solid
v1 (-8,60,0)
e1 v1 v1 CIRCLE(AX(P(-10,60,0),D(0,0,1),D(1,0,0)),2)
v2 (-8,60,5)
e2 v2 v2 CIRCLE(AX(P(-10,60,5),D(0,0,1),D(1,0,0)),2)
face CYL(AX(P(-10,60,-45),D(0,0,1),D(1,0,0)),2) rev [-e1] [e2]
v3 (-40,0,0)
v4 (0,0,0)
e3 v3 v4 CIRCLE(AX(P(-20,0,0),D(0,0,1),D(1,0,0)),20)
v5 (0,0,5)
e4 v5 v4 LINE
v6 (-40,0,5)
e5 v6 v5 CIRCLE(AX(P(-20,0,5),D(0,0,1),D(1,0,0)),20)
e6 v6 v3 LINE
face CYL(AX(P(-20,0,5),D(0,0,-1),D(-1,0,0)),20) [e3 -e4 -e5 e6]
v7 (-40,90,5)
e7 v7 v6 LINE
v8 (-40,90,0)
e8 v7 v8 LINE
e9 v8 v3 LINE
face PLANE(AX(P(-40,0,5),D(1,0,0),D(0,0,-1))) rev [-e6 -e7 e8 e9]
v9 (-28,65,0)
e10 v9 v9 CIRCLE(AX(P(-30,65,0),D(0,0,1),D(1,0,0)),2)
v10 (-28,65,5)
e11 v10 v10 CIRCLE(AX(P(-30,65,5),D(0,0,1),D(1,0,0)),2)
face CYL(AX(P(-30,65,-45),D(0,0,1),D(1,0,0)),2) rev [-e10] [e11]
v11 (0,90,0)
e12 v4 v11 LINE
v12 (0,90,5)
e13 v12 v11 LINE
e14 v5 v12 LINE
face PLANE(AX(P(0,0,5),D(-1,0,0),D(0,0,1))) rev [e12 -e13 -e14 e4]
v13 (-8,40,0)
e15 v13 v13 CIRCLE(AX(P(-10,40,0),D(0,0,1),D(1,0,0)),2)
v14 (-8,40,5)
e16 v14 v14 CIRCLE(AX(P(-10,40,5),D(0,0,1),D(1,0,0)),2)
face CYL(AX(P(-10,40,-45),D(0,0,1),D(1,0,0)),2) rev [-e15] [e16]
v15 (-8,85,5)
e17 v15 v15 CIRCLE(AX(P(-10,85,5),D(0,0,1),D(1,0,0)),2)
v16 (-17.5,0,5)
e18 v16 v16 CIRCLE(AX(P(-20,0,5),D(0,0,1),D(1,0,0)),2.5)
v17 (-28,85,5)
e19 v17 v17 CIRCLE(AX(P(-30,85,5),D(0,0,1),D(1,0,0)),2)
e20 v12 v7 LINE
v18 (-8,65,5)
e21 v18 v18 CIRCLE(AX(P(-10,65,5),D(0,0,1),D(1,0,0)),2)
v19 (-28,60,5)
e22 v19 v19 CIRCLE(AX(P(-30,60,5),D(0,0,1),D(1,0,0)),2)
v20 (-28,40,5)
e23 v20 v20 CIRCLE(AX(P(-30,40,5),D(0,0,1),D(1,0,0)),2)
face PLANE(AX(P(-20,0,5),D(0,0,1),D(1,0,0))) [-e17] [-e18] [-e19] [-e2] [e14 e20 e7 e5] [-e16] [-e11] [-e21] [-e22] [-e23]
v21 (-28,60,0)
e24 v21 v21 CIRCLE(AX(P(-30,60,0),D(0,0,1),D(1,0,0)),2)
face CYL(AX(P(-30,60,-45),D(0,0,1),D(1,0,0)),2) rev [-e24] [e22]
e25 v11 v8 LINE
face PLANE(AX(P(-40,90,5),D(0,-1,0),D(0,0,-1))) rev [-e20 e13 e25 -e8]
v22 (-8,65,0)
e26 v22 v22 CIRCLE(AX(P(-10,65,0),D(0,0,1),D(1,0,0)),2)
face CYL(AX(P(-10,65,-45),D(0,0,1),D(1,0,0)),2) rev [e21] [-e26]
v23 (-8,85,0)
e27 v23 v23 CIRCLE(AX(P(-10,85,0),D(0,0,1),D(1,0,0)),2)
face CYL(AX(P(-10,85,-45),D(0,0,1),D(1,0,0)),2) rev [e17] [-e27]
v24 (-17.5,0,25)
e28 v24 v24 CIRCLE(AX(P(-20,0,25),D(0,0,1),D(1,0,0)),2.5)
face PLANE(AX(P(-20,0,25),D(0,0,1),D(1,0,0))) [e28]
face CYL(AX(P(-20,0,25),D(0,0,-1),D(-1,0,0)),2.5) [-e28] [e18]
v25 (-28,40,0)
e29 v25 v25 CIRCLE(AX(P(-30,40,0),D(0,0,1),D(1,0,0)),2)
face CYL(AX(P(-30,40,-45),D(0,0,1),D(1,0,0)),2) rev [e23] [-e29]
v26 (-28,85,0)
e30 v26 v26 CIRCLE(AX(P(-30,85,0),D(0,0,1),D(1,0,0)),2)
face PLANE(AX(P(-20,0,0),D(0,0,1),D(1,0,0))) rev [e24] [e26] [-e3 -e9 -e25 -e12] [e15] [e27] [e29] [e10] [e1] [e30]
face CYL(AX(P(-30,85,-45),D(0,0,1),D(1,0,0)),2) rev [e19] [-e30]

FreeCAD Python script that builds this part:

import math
import FreeCAD as App
import Part
import Sketcher

doc = App.newDocument("Part")
body = doc.addObject("PartDesign::Body", "Body")

# Sketch on XY plane
sketch1 = body.newObject("Sketcher::SketchObject", "Sketch")
sketch1.AttachmentSupport = (doc.getObject("XY_Plane"), [""])
sketch1.MapMode = "FlatFace"
sketch1.addGeometry(Part.LineSegment(App.Vector(0, 90, 0), App.Vector(-40, 90, 0)), False)
sketch1.addGeometry(Part.LineSegment(App.Vector(-40, 90, 0), App.Vector(-40, 0, 0)), False)
sketch1.addGeometry(Part.ArcOfCircle(Part.Circle(App.Vector(-20, 0, 0), App.Vector(0, 0, 1), 20), math.radians(180), math.radians(360)), False)
sketch1.addGeometry(Part.LineSegment(App.Vector(0, 0, 0), App.Vector(0, 90, 0)), False)
sketch1.addConstraint(Sketcher.Constraint("Coincident", 0, 2, 1, 1))
sketch1.addConstraint(Sketcher.Constraint("Tangent", 1, 2, 2, 1))
sketch1.addConstraint(Sketcher.Constraint("Tangent", 2, 2, 3, 1))
sketch1.addConstraint(Sketcher.Constraint("Coincident", 3, 2, 0, 1))
sketch1.addConstraint(Sketcher.Constraint("Horizontal", 0))
sketch1.addConstraint(Sketcher.Constraint("Vertical", 1))
sketch1.addConstraint(Sketcher.Constraint("Vertical", 3))
sketch1.addConstraint(Sketcher.Constraint("Coincident", 2, 2, -1, 1))
sketch1.addConstraint(Sketcher.Constraint("Radius", 2, 20.0))
sketch1.addConstraint(Sketcher.Constraint("DistanceY", 1, 2, 1, 1, 90.0))
pad1 = body.newObject("PartDesign::Pad", "Pad")
pad1.Profile = sketch1
pad1.Length = 5

# Sketch on XY plane
sketch2 = body.newObject("Sketcher::SketchObject", "Sketch001")
sketch2.AttachmentSupport = (doc.getObject("XY_Plane"), [""])
sketch2.MapMode = "FlatFace"
sketch2.AttachmentOffset = App.Placement(App.Vector(0, 0, 5), App.Rotation())
sketch2.addGeometry(Part.Circle(App.Vector(-20, 0, 0), App.Vector(0, 0, 1), 2.5), False)
sketch2.addConstraint(Sketcher.Constraint("PointOnObject", 0, 3, -1))
sketch2.addConstraint(Sketcher.Constraint("Diameter", 0, 5.0))
sketch2.addConstraint(Sketcher.Constraint("DistanceX", 0, 3, -1, 1, 20.0))
pad2 = body.newObject("PartDesign::Pad", "Pad001")
pad2.Profile = sketch2
pad2.Length = 20

# Sketch on XY plane
sketch3 = body.newObject("Sketcher::SketchObject", "Sketch002")
sketch3.AttachmentSupport = (doc.getObject("XY_Plane"), [""])
sketch3.MapMode = "FlatFace"
sketch3.AttachmentOffset = App.Placement(App.Vector(0, 0, 5), App.Rotation())
sketch3.addGeometry(Part.Circle(App.Vector(-30, 85, 0), App.Vector(0, 0, 1), 2), False)
sketch3.addGeometry(Part.Circle(App.Vector(-10, 85, 0), App.Vector(0, 0, 1), 2), False)
sketch3.addConstraint(Sketcher.Constraint("Equal", 0, 1))
sketch3.addConstraint(Sketcher.Constraint("Horizontal", 0, 3, 1, 3))
sketch3.addConstraint(Sketcher.Constraint("Diameter", 0, 4.0))
sketch3.addConstraint(Sketcher.Constraint("DistanceX", 0, 3, -1, 1, 30.0))
sketch3.addConstraint(Sketcher.Constraint("DistanceY", -1, 1, 0, 3, 85.0))
sketch3.addConstraint(Sketcher.Constraint("DistanceX", 1, 3, -1, 1, 10.0))
pocket1 = body.newObject("PartDesign::Pocket", "Pocket")
pocket1.Profile = sketch3
pocket1.Length = 50

# Sketch on XY plane
sketch4 = body.newObject("Sketcher::SketchObject", "Sketch003")
sketch4.AttachmentSupport = (doc.getObject("XY_Plane"), [""])
sketch4.MapMode = "FlatFace"
sketch4.AttachmentOffset = App.Placement(App.Vector(0, 0, 5), App.Rotation())
sketch4.addGeometry(Part.Circle(App.Vector(-30, 60, 0), App.Vector(0, 0, 1), 2), False)
sketch4.addGeometry(Part.Circle(App.Vector(-10, 60, 0), App.Vector(0, 0, 1), 2), False)
sketch4.addConstraint(Sketcher.Constraint("Equal", 0, 1))
sketch4.addConstraint(Sketcher.Constraint("Horizontal", 0, 3, 1, 3))
sketch4.addConstraint(Sketcher.Constraint("Diameter", 0, 4.0))
sketch4.addConstraint(Sketcher.Constraint("DistanceX", 0, 3, -1, 1, 30.0))
sketch4.addConstraint(Sketcher.Constraint("DistanceY", -1, 1, 0, 3, 60.0))
sketch4.addConstraint(Sketcher.Constraint("DistanceX", 1, 3, -1, 1, 10.0))
pocket2 = body.newObject("PartDesign::Pocket", "Pocket001")
pocket2.Profile = sketch4
pocket2.Length = 50
doc.recompute()

linearpattern = body.newObject("PartDesign::LinearPattern", "LinearPattern")
linearpattern.Originals = [pocket1, pocket2]
linearpattern.Direction = (doc.getObject("Y_Axis"), [""])
linearpattern.Mode = "offset"
linearpattern.Offset = 20
linearpattern.Occurrences = 2
linearpattern.Reversed = True
body.Tip = linearpattern

doc.recompute()
